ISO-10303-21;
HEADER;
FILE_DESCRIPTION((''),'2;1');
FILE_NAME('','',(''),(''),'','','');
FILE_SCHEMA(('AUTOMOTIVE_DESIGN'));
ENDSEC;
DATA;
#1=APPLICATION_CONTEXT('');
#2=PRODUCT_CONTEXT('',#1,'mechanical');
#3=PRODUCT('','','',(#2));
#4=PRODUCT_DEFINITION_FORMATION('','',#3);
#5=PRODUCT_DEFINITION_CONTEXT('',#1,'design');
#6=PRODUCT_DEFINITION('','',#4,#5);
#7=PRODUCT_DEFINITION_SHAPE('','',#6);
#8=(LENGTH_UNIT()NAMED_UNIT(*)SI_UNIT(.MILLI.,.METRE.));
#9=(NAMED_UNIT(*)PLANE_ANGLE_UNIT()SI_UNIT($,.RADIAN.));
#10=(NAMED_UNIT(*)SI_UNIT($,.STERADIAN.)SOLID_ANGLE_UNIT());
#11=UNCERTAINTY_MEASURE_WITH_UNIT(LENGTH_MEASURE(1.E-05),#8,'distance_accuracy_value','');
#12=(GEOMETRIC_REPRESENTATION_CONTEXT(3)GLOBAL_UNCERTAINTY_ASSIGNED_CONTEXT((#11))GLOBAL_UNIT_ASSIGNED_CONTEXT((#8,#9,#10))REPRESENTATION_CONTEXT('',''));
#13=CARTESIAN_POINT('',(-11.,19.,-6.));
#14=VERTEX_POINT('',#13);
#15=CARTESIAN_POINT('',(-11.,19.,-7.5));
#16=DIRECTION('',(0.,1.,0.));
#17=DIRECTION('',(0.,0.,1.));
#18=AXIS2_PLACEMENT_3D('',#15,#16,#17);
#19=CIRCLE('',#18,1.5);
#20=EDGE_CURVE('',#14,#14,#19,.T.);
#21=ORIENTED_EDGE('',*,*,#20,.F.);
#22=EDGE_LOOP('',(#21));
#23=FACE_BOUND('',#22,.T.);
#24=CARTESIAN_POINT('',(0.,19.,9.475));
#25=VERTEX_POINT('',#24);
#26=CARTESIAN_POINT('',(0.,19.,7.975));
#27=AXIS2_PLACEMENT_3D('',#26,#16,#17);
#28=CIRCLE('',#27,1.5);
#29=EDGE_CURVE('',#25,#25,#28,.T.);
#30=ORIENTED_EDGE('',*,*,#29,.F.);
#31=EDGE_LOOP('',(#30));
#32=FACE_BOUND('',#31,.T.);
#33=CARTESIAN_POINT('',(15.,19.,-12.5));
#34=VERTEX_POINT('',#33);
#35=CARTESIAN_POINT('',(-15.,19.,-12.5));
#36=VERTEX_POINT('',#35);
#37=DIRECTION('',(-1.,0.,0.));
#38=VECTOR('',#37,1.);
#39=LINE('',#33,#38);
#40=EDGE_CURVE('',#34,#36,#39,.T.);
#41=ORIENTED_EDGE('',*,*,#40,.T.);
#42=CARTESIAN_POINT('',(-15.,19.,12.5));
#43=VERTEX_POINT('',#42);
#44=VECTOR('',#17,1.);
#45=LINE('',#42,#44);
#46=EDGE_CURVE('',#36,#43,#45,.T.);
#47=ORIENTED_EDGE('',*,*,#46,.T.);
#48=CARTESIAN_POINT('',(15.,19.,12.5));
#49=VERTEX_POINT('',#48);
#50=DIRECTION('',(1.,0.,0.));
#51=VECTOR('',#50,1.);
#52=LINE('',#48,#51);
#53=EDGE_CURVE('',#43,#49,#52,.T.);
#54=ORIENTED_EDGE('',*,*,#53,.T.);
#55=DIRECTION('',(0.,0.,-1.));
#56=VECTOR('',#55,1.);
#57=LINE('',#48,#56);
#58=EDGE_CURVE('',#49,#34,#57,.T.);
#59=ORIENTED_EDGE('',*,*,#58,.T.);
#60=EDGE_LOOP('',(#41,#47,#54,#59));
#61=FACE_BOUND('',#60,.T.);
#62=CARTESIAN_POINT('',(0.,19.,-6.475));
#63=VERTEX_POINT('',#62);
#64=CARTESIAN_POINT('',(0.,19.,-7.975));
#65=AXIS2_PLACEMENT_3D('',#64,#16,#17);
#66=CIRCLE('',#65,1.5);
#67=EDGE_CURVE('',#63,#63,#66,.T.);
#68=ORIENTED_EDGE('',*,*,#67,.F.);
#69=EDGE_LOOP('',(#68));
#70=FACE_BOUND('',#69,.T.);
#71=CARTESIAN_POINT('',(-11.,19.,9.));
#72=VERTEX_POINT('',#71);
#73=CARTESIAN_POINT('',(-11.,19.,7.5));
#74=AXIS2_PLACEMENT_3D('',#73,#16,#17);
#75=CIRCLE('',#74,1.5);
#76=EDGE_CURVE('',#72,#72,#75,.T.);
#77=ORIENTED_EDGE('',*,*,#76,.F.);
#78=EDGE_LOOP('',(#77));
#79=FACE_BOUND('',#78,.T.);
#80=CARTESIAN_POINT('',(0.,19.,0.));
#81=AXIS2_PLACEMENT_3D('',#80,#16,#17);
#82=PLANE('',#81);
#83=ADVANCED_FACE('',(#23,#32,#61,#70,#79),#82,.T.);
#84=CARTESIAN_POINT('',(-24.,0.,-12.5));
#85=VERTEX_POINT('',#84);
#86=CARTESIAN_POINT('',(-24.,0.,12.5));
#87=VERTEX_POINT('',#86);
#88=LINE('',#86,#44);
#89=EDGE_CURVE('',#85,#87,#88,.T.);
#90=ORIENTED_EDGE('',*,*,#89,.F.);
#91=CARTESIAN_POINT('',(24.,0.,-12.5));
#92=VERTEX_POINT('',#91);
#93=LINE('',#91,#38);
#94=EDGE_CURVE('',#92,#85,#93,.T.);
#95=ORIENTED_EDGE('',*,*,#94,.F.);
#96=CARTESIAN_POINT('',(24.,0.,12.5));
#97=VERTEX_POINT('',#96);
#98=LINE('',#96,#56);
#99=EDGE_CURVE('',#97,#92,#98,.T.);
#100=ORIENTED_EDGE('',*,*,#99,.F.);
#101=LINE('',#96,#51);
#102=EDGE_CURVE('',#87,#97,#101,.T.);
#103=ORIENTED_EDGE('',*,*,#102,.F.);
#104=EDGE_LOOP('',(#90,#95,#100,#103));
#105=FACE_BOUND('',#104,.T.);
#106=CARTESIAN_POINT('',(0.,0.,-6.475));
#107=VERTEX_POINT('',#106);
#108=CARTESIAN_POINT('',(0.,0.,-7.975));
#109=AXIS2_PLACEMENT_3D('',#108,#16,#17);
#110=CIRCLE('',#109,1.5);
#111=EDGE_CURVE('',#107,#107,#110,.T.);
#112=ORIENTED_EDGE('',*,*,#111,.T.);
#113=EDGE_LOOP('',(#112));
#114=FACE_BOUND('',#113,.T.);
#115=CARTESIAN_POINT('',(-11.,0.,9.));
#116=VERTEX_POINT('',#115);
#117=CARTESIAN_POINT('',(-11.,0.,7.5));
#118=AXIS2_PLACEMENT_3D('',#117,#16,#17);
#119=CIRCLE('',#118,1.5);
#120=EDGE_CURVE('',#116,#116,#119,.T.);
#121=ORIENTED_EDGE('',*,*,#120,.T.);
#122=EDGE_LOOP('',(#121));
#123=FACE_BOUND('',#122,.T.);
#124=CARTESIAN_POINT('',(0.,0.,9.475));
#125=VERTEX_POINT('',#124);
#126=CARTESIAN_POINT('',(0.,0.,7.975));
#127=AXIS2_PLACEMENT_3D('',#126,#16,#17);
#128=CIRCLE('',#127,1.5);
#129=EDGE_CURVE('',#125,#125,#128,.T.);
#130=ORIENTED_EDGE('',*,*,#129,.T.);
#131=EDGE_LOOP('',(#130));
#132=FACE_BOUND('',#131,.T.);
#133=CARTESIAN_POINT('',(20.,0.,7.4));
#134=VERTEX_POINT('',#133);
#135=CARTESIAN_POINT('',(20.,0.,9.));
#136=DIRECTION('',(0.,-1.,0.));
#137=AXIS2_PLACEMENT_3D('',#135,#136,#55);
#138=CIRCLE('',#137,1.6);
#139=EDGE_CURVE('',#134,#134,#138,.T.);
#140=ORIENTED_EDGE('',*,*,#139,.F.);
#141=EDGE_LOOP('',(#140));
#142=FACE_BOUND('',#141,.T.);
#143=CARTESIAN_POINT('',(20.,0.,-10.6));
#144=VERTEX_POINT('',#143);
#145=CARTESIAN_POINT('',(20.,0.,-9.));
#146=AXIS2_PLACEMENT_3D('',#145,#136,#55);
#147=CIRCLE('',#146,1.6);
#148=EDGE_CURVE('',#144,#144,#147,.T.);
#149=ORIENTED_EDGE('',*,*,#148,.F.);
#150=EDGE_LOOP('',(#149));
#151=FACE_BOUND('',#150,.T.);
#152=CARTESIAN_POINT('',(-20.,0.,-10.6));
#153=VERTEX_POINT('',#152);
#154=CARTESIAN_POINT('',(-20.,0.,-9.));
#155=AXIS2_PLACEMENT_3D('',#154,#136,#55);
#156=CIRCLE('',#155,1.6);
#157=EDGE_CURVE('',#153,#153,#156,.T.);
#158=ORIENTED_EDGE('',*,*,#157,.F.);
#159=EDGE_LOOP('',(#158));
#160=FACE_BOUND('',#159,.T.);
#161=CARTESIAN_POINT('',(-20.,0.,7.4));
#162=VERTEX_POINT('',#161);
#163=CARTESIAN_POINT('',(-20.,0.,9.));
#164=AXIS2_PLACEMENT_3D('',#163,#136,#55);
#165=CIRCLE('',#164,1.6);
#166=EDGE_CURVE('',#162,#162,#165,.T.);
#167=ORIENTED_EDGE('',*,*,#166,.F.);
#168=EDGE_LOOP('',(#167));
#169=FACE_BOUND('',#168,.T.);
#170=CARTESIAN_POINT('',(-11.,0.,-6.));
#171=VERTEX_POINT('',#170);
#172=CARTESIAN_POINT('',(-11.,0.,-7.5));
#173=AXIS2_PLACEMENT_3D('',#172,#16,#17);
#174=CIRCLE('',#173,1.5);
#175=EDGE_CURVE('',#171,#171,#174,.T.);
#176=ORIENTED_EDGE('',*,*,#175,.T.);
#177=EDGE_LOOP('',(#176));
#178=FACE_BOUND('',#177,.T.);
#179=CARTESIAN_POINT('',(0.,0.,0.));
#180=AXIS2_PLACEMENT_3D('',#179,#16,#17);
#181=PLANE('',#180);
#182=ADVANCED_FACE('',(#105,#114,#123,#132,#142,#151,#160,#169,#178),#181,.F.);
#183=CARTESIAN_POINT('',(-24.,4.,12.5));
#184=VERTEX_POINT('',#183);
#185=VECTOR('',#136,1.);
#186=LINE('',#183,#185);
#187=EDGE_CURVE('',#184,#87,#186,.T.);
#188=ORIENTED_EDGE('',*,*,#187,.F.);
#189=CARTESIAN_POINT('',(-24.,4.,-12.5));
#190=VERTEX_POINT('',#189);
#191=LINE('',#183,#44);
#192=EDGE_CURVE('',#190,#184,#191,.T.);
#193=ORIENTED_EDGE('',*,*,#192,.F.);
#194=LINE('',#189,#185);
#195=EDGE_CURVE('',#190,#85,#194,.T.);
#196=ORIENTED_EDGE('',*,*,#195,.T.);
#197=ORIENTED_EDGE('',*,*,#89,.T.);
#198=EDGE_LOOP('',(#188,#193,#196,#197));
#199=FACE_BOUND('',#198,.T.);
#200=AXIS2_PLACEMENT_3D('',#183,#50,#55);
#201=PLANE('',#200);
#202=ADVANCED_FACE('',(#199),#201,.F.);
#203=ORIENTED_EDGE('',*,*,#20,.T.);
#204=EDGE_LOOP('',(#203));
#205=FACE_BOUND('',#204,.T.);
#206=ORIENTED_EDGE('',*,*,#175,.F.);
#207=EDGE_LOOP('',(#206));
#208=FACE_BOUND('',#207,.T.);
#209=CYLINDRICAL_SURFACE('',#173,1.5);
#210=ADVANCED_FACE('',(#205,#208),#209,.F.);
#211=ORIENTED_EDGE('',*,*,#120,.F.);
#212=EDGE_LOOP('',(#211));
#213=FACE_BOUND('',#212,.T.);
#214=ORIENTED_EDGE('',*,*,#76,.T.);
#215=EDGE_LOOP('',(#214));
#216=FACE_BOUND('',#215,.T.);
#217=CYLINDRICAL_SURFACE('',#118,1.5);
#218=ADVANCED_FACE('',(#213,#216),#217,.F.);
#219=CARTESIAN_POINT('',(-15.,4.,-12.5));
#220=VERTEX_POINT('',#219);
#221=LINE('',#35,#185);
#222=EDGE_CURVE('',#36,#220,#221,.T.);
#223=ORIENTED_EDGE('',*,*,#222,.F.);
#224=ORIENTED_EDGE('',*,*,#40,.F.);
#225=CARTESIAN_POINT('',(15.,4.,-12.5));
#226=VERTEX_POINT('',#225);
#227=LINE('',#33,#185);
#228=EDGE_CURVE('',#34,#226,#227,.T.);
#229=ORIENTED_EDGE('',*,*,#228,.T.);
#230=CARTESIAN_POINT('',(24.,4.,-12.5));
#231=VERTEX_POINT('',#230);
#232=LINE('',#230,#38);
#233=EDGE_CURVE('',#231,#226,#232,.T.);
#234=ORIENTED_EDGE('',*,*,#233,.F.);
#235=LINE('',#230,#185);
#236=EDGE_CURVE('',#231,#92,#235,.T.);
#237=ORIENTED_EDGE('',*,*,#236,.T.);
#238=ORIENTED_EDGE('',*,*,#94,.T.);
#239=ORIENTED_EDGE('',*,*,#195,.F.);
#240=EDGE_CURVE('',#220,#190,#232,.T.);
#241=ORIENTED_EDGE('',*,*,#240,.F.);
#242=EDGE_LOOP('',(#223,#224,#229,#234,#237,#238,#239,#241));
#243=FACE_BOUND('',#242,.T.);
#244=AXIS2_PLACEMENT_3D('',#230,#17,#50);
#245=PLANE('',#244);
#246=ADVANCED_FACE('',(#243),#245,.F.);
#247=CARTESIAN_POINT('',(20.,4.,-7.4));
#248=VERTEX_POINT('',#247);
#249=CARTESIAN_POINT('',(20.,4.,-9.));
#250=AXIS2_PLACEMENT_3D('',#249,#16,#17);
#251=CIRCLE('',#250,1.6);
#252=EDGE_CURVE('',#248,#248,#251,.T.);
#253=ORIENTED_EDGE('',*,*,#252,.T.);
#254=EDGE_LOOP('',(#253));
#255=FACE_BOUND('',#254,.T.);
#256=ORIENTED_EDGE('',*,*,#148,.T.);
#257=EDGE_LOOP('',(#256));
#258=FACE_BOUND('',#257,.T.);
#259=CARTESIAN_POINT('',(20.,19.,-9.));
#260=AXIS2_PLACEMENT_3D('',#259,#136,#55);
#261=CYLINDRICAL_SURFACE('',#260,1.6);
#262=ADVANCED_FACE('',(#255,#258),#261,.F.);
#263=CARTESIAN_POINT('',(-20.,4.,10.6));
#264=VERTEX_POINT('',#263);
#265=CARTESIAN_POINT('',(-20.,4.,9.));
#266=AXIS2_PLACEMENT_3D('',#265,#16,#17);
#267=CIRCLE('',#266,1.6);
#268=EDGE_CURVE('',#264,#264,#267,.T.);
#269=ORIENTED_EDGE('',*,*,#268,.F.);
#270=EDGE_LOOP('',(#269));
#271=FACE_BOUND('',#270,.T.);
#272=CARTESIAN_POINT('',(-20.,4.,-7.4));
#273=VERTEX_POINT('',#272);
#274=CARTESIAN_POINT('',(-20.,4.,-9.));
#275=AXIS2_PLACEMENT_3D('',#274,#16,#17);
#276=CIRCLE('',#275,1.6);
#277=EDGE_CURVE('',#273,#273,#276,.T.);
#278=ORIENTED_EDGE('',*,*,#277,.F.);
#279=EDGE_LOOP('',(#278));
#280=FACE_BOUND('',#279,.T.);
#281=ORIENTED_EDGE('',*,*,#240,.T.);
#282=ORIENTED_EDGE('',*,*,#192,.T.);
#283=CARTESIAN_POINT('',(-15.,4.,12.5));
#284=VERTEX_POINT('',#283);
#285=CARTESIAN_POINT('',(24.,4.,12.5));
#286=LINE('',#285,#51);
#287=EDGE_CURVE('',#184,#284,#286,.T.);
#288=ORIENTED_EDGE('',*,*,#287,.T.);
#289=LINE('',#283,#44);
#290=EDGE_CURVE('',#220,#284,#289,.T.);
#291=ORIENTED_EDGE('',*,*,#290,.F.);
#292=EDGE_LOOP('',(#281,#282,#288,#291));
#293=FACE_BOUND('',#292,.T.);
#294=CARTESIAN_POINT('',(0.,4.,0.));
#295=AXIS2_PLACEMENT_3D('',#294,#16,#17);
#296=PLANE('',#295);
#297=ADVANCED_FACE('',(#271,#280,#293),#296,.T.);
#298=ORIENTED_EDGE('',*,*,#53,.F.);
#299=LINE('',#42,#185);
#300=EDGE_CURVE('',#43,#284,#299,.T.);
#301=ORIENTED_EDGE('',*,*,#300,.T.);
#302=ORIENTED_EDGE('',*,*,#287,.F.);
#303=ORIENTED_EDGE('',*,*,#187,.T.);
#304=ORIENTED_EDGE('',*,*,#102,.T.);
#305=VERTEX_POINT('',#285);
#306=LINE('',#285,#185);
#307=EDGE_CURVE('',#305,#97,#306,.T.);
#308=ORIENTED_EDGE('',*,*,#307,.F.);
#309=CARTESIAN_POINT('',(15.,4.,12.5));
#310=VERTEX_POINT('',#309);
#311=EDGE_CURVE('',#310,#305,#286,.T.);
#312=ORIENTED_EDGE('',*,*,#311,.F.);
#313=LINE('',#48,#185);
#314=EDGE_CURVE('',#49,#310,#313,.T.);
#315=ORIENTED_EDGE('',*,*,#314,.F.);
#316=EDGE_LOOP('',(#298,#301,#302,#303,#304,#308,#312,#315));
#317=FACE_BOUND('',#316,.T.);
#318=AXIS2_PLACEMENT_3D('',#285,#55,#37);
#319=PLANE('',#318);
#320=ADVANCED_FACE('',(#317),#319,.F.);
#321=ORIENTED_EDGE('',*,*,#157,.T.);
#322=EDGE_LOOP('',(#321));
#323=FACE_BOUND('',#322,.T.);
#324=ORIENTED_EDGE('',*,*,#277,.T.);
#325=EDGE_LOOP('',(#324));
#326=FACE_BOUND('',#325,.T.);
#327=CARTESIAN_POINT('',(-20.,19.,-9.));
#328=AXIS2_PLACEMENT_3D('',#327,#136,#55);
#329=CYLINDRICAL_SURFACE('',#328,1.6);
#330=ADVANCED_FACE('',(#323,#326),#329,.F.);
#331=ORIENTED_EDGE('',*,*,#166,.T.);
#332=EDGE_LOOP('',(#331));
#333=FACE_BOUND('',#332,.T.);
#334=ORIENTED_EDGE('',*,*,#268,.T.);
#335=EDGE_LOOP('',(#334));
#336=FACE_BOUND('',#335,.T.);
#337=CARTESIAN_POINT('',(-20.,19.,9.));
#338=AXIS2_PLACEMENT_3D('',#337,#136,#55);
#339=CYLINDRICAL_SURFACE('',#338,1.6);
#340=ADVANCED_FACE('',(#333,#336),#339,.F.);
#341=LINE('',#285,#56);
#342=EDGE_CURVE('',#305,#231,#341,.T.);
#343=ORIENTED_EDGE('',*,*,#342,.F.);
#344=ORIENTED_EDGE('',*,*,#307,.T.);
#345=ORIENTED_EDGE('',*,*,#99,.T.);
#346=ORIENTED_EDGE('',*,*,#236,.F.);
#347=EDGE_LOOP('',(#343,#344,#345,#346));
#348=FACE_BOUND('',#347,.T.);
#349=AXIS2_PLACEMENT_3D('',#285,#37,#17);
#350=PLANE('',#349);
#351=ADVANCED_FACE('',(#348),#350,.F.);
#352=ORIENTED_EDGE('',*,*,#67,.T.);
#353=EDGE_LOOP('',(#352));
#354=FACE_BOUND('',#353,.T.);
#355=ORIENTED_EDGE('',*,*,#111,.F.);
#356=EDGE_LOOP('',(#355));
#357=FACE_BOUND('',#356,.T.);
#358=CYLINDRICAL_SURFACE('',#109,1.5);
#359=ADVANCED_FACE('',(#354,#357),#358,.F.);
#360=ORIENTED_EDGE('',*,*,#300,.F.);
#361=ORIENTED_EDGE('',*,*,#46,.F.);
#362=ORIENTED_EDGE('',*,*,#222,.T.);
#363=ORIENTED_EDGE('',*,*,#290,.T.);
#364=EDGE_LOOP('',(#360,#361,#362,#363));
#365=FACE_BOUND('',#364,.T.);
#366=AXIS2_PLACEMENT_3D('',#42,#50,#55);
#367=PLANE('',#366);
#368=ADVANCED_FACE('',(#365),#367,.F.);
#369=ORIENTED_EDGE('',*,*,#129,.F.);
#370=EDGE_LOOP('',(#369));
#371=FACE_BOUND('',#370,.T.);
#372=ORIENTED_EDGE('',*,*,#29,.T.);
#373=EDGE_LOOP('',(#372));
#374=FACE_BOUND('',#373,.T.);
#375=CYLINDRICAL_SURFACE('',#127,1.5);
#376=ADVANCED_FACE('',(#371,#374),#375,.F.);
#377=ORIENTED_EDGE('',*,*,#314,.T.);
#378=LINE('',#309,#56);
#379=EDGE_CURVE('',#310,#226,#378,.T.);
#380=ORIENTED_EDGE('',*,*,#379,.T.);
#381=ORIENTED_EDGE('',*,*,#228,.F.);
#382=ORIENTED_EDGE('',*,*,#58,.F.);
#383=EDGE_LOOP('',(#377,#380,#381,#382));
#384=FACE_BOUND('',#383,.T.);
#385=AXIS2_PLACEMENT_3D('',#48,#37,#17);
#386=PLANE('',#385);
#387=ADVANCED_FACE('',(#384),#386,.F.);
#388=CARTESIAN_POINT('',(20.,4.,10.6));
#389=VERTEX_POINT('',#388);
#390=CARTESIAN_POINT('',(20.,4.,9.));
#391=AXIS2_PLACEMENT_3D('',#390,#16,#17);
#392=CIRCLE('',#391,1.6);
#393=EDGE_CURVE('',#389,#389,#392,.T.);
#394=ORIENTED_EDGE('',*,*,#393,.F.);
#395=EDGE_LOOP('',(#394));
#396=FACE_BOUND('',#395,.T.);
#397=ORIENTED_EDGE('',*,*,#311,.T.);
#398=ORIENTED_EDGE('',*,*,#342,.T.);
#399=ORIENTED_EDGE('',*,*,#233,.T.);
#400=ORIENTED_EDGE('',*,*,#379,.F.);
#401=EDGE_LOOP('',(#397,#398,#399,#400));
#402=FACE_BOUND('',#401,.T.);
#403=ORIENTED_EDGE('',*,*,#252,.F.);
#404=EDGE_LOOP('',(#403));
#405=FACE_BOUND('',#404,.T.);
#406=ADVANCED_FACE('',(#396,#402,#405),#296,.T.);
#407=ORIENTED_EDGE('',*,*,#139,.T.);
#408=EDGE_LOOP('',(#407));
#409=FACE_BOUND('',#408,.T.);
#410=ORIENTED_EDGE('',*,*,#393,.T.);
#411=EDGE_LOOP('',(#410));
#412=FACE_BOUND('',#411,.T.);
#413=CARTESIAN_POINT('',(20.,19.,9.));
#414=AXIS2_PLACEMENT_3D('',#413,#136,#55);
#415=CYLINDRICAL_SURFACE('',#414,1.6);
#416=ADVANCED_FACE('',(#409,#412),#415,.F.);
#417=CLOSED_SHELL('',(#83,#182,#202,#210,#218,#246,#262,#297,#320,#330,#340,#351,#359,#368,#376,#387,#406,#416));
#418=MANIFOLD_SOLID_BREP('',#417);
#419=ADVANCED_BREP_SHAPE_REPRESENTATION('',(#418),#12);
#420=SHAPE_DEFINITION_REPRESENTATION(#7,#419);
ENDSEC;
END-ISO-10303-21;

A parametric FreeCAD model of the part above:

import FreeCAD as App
import Part
import Sketcher
Q = App.Units.Quantity

doc = App.newDocument("Part")
params = doc.addObject("Spreadsheet::Sheet", "Params")
for row, (alias, value) in enumerate([
    ("sketch1_width", "48 mm"),
    ("sketch1_height", "25 mm"),
    ("pad1_length", "4 mm"),
    ("sketch2_width", "30 mm"),
    ("sketch2_height", "25 mm"),
    ("pad2_length", "15 mm"),
    ("sketch3_diameter", "3 mm"),
    ("sketch4_diameter", "3.2 mm"),
], start=1):
    params.set(f"A{row}", alias)
    params.set(f"B{row}", "=" + value)
    params.setAlias(f"B{row}", alias)

body = doc.addObject("PartDesign::Body", "Body")

# Sketch on XZ plane
sketch1 = body.newObject("Sketcher::SketchObject", "Sketch")
sketch1.AttachmentSupport = (doc.getObject("XZ_Plane"), [""])
sketch1.MapMode = "FlatFace"
sketch1.addGeometry(Part.LineSegment(App.Vector(-24, -12, 0), App.Vector(-24, 12, 0)), False)
sketch1.addGeometry(Part.LineSegment(App.Vector(-24, 12, 0), App.Vector(24, 12, 0)), False)
sketch1.addGeometry(Part.LineSegment(App.Vector(24, 12, 0), App.Vector(24, -12, 0)), False)
sketch1.addGeometry(Part.LineSegment(App.Vector(24, -12, 0), App.Vector(-24, -12, 0)), False)
sketch1.addConstraint(Sketcher.Constraint("Coincident", 0, 2, 1, 1))
sketch1.addConstraint(Sketcher.Constraint("Coincident", 1, 2, 2, 1))
sketch1.addConstraint(Sketcher.Constraint("Coincident", 2, 2, 3, 1))
sketch1.addConstraint(Sketcher.Constraint("Coincident", 3, 2, 0, 1))
sketch1.addConstraint(Sketcher.Constraint("Vertical", 0))
sketch1.addConstraint(Sketcher.Constraint("Horizontal", 1))
sketch1.addConstraint(Sketcher.Constraint("Vertical", 2))
sketch1.addConstraint(Sketcher.Constraint("Horizontal", 3))
sketch1.addConstraint(Sketcher.Constraint("Symmetric", 0, 2, 2, 2, -1, 1))
sketch1.addConstraint(Sketcher.Constraint("DistanceX", 1, 1, 1, 2, Q("48 mm")))
sketch1.addConstraint(Sketcher.Constraint("DistanceY", 0, 1, 0, 2, Q("25 mm")))
sketch1.setExpression("Constraints[9]", "Params.sketch1_width")
sketch1.setExpression("Constraints[10]", "Params.sketch1_height")
pad1 = body.newObject("PartDesign::Pad", "Pad")
pad1.Profile = sketch1
pad1.setExpression("Length", "Params.pad1_length")
pad1.Reversed = True

# Sketch on XZ plane
sketch2 = body.newObject("Sketcher::SketchObject", "Sketch001")
sketch2.AttachmentSupport = (doc.getObject("XZ_Plane"), [""])
sketch2.MapMode = "FlatFace"
sketch2.AttachmentOffset = App.Placement(App.Vector(0, 0, -4), App.Rotation())
sketch2.addGeometry(Part.LineSegment(App.Vector(-15, -12, 0), App.Vector(-15, 12, 0)), False)
sketch2.addGeometry(Part.LineSegment(App.Vector(-15, 12, 0), App.Vector(15, 12, 0)), False)
sketch2.addGeometry(Part.LineSegment(App.Vector(15, 12, 0), App.Vector(15, -12, 0)), False)
sketch2.addGeometry(Part.LineSegment(App.Vector(15, -12, 0), App.Vector(-15, -12, 0)), False)
sketch2.addConstraint(Sketcher.Constraint("Coincident", 0, 2, 1, 1))
sketch2.addConstraint(Sketcher.Constraint("Coincident", 1, 2, 2, 1))
sketch2.addConstraint(Sketcher.Constraint("Coincident", 2, 2, 3, 1))
sketch2.addConstraint(Sketcher.Constraint("Coincident", 3, 2, 0, 1))
sketch2.addConstraint(Sketcher.Constraint("Vertical", 0))
sketch2.addConstraint(Sketcher.Constraint("Horizontal", 1))
sketch2.addConstraint(Sketcher.Constraint("Vertical", 2))
sketch2.addConstraint(Sketcher.Constraint("Horizontal", 3))
sketch2.addConstraint(Sketcher.Constraint("Symmetric", 0, 2, 2, 2, -1, 1))
sketch2.addConstraint(Sketcher.Constraint("DistanceX", 1, 1, 1, 2, Q("30 mm")))
sketch2.addConstraint(Sketcher.Constraint("DistanceY", 0, 1, 0, 2, Q("25 mm")))
sketch2.setExpression("Constraints[9]", "Params.sketch2_width")
sketch2.setExpression("Constraints[10]", "Params.sketch2_height")
pad2 = body.newObject("PartDesign::Pad", "Pad001")
pad2.Profile = sketch2
pad2.setExpression("Length", "Params.pad2_length")
pad2.Reversed = True

# Sketch on XZ plane
sketch3 = body.newObject("Sketcher::SketchObject", "Sketch002")
sketch3.AttachmentSupport = (doc.getObject("XZ_Plane"), [""])
sketch3.MapMode = "FlatFace"
sketch3.AttachmentOffset = App.Placement(App.Vector(0, 0, -19), App.Rotation())
sketch3.addGeometry(Part.Circle(App.Vector(0, -8, 0), App.Vector(0, 0, 1), 1.5), False)
sketch3.addGeometry(Part.Circle(App.Vector(0, 8, 0), App.Vector(0, 0, 1), 1.5), False)
sketch3.addGeometry(Part.Circle(App.Vector(-11, -7.5, 0), App.Vector(0, 0, 1), 1.5), False)
sketch3.addGeometry(Part.Circle(App.Vector(-11, 7.5, 0), App.Vector(0, 0, 1), 1.5), False)
sketch3.addConstraint(Sketcher.Constraint("Equal", 0, 1))
sketch3.addConstraint(Sketcher.Constraint("Equal", 1, 2))
sketch3.addConstraint(Sketcher.Constraint("Equal", 2, 3))
sketch3.addConstraint(Sketcher.Constraint("Symmetric", 0, 3, 1, 3, -1, 1))
sketch3.addConstraint(Sketcher.Constraint("Symmetric", 2, 3, 3, 3, -1))
sketch3.addConstraint(Sketcher.Constraint("PointOnObject", 0, 3, -2))
sketch3.addConstraint(Sketcher.Constraint("Diameter", 0, Q("3 mm")))
sketch3.addConstraint(Sketcher.Constraint("DistanceX", 2, 3, -1, 1, Q("11 mm")))
sketch3.addConstraint(Sketcher.Constraint("DistanceY", 2, 3, 3, 3, Q("15 mm")))
sketch3.addConstraint(Sketcher.Constraint("DistanceY", 0, 3, 1, 3, Q("15.95 mm")))
sketch3.setExpression("Constraints[6]", "Params.sketch3_diameter")
pocket1 = body.newObject("PartDesign::Pocket", "Pocket")
pocket1.Profile = sketch3
pocket1.Type = "ThroughAll"
pocket1.Reversed = True

# Sketch on XZ plane
sketch4 = body.newObject("Sketcher::SketchObject", "Sketch003")
sketch4.AttachmentSupport = (doc.getObject("XZ_Plane"), [""])
sketch4.MapMode = "FlatFace"
sketch4.addGeometry(Part.Circle(App.Vector(-20, 9, 0), App.Vector(0, 0, 1), 1.6), False)
sketch4.addGeometry(Part.Circle(App.Vector(20, 9, 0), App.Vector(0, 0, 1), 1.6), False)
sketch4.addGeometry(Part.Circle(App.Vector(20, -9, 0), App.Vector(0, 0, 1), 1.6), False)
sketch4.addGeometry(Part.Circle(App.Vector(-20, -9, 0), App.Vector(0, 0, 1), 1.6), False)
sketch4.addConstraint(Sketcher.Constraint("Equal", 0, 1))
sketch4.addConstraint(Sketcher.Constraint("Equal", 1, 2))
sketch4.addConstraint(Sketcher.Constraint("Equal", 2, 3))
sketch4.addConstraint(Sketcher.Constraint("Symmetric", 0, 3, 2, 3, -1, 1))
sketch4.addConstraint(Sketcher.Constraint("Symmetric", 1, 3, 3, 3, -1, 1))
sketch4.addConstraint(Sketcher.Constraint("Symmetric", 0, 3, 1, 3, -2))
sketch4.addConstraint(Sketcher.Constraint("Diameter", 0, Q("3.2 mm")))
sketch4.addConstraint(Sketcher.Constraint("DistanceX", 0, 3, -1, 1, Q("20 mm")))
sketch4.addConstraint(Sketcher.Constraint("DistanceY", -1, 1, 0, 3, Q("9 mm")))
sketch4.setExpression("Constraints[6]", "Params.sketch4_diameter")
pocket2 = body.newObject("PartDesign::Pocket", "Pocket001")
pocket2.Profile = sketch4
pocket2.Type = "ThroughAll"

doc.recompute()
